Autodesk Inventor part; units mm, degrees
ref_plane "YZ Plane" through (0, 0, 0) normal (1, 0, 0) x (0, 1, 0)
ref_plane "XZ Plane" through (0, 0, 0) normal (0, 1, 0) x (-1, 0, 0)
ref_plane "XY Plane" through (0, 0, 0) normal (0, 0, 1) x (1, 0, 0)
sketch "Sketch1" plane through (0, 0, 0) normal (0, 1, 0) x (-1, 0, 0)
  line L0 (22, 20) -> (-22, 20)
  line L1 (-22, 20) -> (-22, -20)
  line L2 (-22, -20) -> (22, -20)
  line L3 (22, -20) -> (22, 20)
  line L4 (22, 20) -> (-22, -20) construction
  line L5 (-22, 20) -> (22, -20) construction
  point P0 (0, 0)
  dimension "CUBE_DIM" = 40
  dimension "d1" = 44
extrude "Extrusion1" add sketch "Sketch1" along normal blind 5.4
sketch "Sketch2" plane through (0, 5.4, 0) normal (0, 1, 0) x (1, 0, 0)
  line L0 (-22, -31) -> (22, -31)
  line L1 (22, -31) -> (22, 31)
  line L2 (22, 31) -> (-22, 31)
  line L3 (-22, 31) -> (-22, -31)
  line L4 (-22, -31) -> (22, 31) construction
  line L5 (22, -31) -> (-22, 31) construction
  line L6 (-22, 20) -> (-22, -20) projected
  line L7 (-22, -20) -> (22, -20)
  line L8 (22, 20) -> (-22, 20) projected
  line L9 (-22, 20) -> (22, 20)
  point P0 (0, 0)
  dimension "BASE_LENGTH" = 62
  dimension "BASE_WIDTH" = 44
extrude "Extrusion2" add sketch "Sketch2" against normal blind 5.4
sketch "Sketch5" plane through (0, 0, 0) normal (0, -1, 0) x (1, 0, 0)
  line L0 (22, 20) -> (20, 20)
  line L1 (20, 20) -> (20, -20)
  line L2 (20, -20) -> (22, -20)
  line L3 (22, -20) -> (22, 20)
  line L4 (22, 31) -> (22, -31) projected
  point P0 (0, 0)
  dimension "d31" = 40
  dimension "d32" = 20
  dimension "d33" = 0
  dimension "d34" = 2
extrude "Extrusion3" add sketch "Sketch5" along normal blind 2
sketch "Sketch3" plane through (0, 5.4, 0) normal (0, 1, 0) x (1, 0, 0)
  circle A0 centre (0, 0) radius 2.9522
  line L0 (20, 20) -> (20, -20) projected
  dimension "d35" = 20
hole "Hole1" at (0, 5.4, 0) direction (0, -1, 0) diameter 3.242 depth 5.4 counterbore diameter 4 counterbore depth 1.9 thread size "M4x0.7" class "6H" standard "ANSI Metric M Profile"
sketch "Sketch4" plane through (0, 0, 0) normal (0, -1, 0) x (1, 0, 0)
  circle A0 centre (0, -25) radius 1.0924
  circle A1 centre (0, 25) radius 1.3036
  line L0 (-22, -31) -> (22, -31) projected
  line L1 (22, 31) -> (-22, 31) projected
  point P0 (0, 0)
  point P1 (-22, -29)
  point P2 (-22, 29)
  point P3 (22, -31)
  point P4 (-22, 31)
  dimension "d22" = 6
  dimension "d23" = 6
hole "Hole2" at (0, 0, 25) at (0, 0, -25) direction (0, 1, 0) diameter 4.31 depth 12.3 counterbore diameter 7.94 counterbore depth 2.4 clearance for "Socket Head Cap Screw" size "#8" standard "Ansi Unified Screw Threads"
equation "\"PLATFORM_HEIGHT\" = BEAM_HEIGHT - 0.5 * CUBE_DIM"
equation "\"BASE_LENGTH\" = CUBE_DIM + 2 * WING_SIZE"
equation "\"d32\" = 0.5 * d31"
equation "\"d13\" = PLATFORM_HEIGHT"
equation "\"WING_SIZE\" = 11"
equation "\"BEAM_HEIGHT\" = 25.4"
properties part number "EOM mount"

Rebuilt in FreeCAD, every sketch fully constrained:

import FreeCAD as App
import Part
import Sketcher


def add_polygon(sketch, points):
    """Adds a closed chain of lines whose ends are joined by coincident constraints."""
    first, n = sketch.GeometryCount, len(points)
    for a, b in zip(points, points[1:] + points[:1]):
        sketch.addGeometry(Part.LineSegment(App.Vector(*a, 0), App.Vector(*b, 0)), False)
    for i in range(n):
        sketch.addConstraint(Sketcher.Constraint("Coincident", first + i, 2, first + (i + 1) % n, 1))

doc = App.newDocument("Part")
body = doc.addObject("PartDesign::Body", "Body")

sketch1 = body.newObject("Sketcher::SketchObject", "Sketch")
sketch1.AttachmentSupport = (doc.getObject("XZ_Plane"), [""])
sketch1.MapMode = "FlatFace"
add_polygon(sketch1, [(-22, -20), (-22, 20), (22, 20), (22, -20)])
sketch1.addConstraint([
    Sketcher.Constraint("Vertical", 0),
    Sketcher.Constraint("Horizontal", 1),
    Sketcher.Constraint("Vertical", 2),
    Sketcher.Constraint("Horizontal", 3),
    Sketcher.Constraint("Symmetric", 0, 2, 2, 2, -1, 1),
    Sketcher.Constraint("DistanceX", 1, 1, 1, 2, 44.0),
    Sketcher.Constraint("DistanceY", 0, 1, 0, 2, 40.0),
])
pad1 = body.newObject("PartDesign::Pad", "Pad")
pad1.Profile = sketch1
pad1.Length = 5.4
pad1.Reversed = True

sketch2 = body.newObject("Sketcher::SketchObject", "Sketch001")
sketch2.AttachmentSupport = (doc.getObject("XZ_Plane"), [""])
sketch2.MapMode = "FlatFace"
sketch2.AttachmentOffset = App.Placement(App.Vector(0, 0, -5.4), App.Rotation())
add_polygon(sketch2, [(-22, 31), (22, 31), (22, -31), (-22, -31)])
sketch2.addConstraint([
    Sketcher.Constraint("Horizontal", 0),
    Sketcher.Constraint("Vertical", 1),
    Sketcher.Constraint("Horizontal", 2),
    Sketcher.Constraint("Vertical", 3),
    Sketcher.Constraint("Symmetric", 0, 2, 2, 2, -1, 1),
    Sketcher.Constraint("DistanceX", 0, 1, 0, 2, 44.0),
    Sketcher.Constraint("DistanceY", 1, 2, 1, 1, 62.0),
])
pad2 = body.newObject("PartDesign::Pad", "Pad001")
pad2.Profile = sketch2
pad2.Length = 5.4

sketch3 = body.newObject("Sketcher::SketchObject", "Sketch002")
sketch3.AttachmentSupport = (doc.getObject("XZ_Plane"), [""])
sketch3.MapMode = "FlatFace"
add_polygon(sketch3, [(22, -20), (22, 20), (20, 20), (20, -20)])
sketch3.addConstraint([
    Sketcher.Constraint("Vertical", 0),
    Sketcher.Constraint("Horizontal", 1),
    Sketcher.Constraint("Vertical", 2),
    Sketcher.Constraint("Horizontal", 3),
    Sketcher.Constraint("DistanceX", 1, 2, 1, 1, 2.0),
    Sketcher.Constraint("DistanceY", 0, 1, 0, 2, 40.0),
    Sketcher.Constraint("DistanceY", -1, 1, 0, 2, 20.0),
    Sketcher.Constraint("DistanceX", -1, 1, 1, 2, 20.0),
])
pad3 = body.newObject("PartDesign::Pad", "Pad002")
pad3.Profile = sketch3
pad3.Length = 2

sketch4 = body.newObject("Sketcher::SketchObject", "Sketch003")
sketch4.AttachmentSupport = (doc.getObject("XZ_Plane"), [""])
sketch4.MapMode = "FlatFace"
sketch4.AttachmentOffset = App.Placement(App.Vector(0, 0, -5.4), App.Rotation())
sketch4.addGeometry(Part.Circle(App.Vector(0, 0, 0), App.Vector(0, 0, 1), 1.621), False)
sketch4.addConstraint([
    Sketcher.Constraint("Coincident", 0, 3, -1, 1),
    Sketcher.Constraint("Diameter", 0, 3.242),
])
doc.recompute()
hole = body.newObject("PartDesign::Hole", "Hole")
hole.Profile = sketch4
hole.ThreadType = "None"
hole.Diameter = 3.242
hole.DepthType = "Dimension"
hole.Depth = 5.4
hole.DrillPoint = "Flat"
hole.HoleCutType = "Counterbore"
hole.HoleCutDiameter = 4
hole.HoleCutDepth = 1.9
hole.Reversed = True

sketch5 = body.newObject("Sketcher::SketchObject", "Sketch004")
sketch5.AttachmentSupport = (doc.getObject("XZ_Plane"), [""])
sketch5.MapMode = "FlatFace"
sketch5.addGeometry([
    Part.Circle(App.Vector(0, 25, 0), App.Vector(0, 0, 1), 2.155),
    Part.Circle(App.Vector(0, -25, 0), App.Vector(0, 0, 1), 2.155),
], False)
sketch5.addConstraint([
    Sketcher.Constraint("Equal", 0, 1),
    Sketcher.Constraint("Symmetric", 0, 3, 1, 3, -1, 1),
    Sketcher.Constraint("PointOnObject", 0, 3, -2),
    Sketcher.Constraint("Diameter", 0, 4.31),
    Sketcher.Constraint("DistanceY", -1, 1, 0, 3, 25.0),
])
doc.recompute()
hole2 = body.newObject("PartDesign::Hole", "Hole001")
hole2.Profile = sketch5
hole2.ThreadType = "None"
hole2.Diameter = 4.31
hole2.DepthType = "Dimension"
hole2.Depth = 12.3
hole2.DrillPoint = "Flat"
hole2.HoleCutType = "Counterbore"
hole2.HoleCutDiameter = 7.94
hole2.HoleCutDepth = 2.4

doc.recompute()
